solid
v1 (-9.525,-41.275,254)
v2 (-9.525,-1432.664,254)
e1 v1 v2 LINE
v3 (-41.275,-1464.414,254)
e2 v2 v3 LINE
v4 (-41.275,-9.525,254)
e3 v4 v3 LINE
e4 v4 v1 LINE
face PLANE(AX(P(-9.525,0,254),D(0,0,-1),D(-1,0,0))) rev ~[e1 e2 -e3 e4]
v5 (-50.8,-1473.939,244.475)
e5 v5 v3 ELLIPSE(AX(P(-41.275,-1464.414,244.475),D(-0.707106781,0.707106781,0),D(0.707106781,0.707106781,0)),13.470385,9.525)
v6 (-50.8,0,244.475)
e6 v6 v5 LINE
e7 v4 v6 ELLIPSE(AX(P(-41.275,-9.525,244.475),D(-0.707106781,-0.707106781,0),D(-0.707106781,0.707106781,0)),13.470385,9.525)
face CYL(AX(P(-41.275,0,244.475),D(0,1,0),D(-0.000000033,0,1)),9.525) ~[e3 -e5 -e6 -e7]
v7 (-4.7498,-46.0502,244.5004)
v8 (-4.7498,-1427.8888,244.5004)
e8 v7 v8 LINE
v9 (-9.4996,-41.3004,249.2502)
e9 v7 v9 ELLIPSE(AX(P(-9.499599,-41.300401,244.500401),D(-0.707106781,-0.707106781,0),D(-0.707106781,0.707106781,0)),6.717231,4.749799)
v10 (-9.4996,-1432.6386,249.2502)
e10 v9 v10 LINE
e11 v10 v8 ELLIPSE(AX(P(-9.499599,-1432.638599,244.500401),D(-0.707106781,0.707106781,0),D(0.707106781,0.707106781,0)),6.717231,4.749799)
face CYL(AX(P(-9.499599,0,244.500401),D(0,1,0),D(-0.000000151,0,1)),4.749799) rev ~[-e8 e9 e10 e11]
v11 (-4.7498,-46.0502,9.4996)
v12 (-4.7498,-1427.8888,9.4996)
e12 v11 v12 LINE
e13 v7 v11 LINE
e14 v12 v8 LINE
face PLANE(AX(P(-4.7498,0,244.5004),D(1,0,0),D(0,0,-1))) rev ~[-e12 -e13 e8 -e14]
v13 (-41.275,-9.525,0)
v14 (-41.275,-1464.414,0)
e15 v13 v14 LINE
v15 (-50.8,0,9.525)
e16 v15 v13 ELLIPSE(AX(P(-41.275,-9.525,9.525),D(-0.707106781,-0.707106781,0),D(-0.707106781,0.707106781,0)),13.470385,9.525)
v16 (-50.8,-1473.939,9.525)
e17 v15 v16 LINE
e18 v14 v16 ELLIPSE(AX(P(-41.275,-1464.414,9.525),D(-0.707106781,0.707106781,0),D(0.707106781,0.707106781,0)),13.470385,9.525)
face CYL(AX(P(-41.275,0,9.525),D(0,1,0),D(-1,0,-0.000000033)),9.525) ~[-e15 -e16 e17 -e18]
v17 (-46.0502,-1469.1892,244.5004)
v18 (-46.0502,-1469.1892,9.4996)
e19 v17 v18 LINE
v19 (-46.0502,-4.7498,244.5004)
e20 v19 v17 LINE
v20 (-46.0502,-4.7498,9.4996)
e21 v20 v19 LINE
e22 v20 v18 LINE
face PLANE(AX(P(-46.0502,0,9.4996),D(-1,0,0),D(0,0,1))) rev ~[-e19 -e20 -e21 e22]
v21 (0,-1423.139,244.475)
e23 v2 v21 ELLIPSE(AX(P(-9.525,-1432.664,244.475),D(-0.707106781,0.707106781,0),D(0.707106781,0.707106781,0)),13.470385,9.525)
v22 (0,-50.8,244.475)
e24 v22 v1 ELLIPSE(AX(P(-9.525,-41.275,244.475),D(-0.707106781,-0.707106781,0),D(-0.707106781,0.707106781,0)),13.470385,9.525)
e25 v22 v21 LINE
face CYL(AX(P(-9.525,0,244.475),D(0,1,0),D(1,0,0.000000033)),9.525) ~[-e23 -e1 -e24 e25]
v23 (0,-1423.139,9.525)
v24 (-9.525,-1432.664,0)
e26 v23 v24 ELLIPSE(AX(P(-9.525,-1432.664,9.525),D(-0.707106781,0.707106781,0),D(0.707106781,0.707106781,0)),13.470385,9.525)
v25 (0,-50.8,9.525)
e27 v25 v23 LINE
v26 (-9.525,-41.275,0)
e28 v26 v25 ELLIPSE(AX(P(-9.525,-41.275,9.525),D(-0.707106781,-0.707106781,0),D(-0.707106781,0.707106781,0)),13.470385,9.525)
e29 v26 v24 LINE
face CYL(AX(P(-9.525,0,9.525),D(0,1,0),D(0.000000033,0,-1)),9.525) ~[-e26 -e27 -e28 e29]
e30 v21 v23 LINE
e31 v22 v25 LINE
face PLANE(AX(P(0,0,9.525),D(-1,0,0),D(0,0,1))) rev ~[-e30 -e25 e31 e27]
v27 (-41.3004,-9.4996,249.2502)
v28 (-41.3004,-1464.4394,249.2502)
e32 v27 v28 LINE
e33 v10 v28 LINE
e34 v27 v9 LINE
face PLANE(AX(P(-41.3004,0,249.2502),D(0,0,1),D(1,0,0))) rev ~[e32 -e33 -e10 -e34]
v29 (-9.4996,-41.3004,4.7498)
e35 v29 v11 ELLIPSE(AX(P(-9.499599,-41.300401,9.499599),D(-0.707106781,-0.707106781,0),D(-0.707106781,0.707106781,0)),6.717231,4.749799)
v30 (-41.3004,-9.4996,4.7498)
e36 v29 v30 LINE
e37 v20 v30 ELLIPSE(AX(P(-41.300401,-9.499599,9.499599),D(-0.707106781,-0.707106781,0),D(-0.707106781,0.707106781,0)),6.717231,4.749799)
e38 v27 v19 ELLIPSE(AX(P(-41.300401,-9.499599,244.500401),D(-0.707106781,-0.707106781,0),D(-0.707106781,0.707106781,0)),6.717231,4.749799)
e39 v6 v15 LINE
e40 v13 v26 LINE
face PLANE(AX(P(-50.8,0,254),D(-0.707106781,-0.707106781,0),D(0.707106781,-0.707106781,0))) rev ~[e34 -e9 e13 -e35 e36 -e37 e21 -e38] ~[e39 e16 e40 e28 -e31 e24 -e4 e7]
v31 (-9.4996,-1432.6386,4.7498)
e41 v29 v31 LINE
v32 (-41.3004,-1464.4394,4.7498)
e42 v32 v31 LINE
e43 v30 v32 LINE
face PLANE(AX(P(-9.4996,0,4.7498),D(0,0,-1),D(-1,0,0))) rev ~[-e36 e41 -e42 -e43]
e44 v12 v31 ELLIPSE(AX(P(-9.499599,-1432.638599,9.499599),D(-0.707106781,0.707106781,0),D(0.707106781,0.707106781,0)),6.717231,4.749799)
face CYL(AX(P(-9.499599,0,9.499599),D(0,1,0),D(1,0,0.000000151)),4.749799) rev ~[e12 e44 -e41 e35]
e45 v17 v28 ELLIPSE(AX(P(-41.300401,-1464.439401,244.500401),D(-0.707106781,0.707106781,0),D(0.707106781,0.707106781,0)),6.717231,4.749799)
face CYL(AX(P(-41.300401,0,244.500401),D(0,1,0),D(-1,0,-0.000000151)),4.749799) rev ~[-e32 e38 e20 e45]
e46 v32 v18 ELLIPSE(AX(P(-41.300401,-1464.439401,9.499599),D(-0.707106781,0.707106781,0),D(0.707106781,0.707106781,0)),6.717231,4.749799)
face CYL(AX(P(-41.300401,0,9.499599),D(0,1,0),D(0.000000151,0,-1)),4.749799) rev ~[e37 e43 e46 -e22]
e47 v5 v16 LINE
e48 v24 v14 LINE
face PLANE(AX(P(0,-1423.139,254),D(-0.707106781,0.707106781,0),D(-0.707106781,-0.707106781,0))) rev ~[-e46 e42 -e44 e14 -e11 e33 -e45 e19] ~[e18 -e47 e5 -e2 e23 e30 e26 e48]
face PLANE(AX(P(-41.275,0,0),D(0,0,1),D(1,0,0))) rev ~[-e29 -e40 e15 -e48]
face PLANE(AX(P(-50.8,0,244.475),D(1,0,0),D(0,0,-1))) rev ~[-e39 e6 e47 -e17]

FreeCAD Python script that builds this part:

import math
import FreeCAD as App
import Part
import Sketcher
Q = App.Units.Quantity

doc = App.newDocument("Part")
body = doc.addObject("PartDesign::Body", "Body")

# Sketch on XZ plane
sketch1 = doc.addObject("Sketcher::SketchObject", "Sketch")
body.addObject(sketch1)
sketch1.AttachmentSupport = (doc.XZ_Plane, [""])
sketch1.MapMode = "FlatFace"
sketch1.addGeometry([
    Part.LineSegment(App.Vector(-41.275, 0, 0), App.Vector(-9.525, 0, 0)),  # 0
    Part.ArcOfCircle(Part.Circle(App.Vector(-9.525, 9.525, 0), App.Vector(0, 0, 1), 9.525), math.radians(-89.999998), math.radians(-0.000002)),  # 1
    Part.LineSegment(App.Vector(0, 9.525, 0), App.Vector(0, 244.475, 0)),  # 2
    Part.ArcOfCircle(Part.Circle(App.Vector(-9.525, 244.475, 0), App.Vector(0, 0, 1), 9.525), math.radians(0.000002), math.radians(89.999998)),  # 3
    Part.LineSegment(App.Vector(-9.525, 254, 0), App.Vector(-41.275, 254, 0)),  # 4
    Part.ArcOfCircle(Part.Circle(App.Vector(-41.275, 244.475, 0), App.Vector(0, 0, 1), 9.525), math.radians(90.000002), math.radians(179.999998)),  # 5
    Part.LineSegment(App.Vector(-50.8, 244.475, 0), App.Vector(-50.8, 9.525, 0)),  # 6
    Part.ArcOfCircle(Part.Circle(App.Vector(-41.275, 9.525, 0), App.Vector(0, 0, 1), 9.525), math.radians(-179.999998), math.radians(-90.000002)),  # 7
    Part.LineSegment(App.Vector(-46.0502, 9.4996, 0), App.Vector(-46.0502, 244.5004, 0)),  # 8
    Part.ArcOfCircle(Part.Circle(App.Vector(-41.300401, 244.500401, 0), App.Vector(0, 0, 1), 4.749799), math.radians(89.999991), math.radians(180.000009)),  # 9
    Part.LineSegment(App.Vector(-41.3004, 249.2502, 0), App.Vector(-9.4996, 249.2502, 0)),  # 10
    Part.ArcOfCircle(Part.Circle(App.Vector(-9.499599, 244.500401, 0), App.Vector(0, 0, 1), 4.749799), math.radians(-0.000009), math.radians(90.000009)),  # 11
    Part.LineSegment(App.Vector(-4.7498, 244.5004, 0), App.Vector(-4.7498, 9.4996, 0)),  # 12
    Part.ArcOfCircle(Part.Circle(App.Vector(-9.499599, 9.499599, 0), App.Vector(0, 0, 1), 4.749799), math.radians(-90.000009), math.radians(0.000009)),  # 13
    Part.LineSegment(App.Vector(-9.4996, 4.7498, 0), App.Vector(-41.3004, 4.7498, 0)),  # 14
    Part.ArcOfCircle(Part.Circle(App.Vector(-41.300401, 9.499599, 0), App.Vector(0, 0, 1), 4.749799), math.radians(179.999991), math.radians(270.000009)),  # 15
], False)
sketch1.addConstraint([
    Sketcher.Constraint("Tangent", 0, 2, 1, 1),
    Sketcher.Constraint("Tangent", 1, 2, 2, 1),
    Sketcher.Constraint("Tangent", 2, 2, 3, 1),
    Sketcher.Constraint("Tangent", 3, 2, 4, 1),
    Sketcher.Constraint("Tangent", 4, 2, 5, 1),
    Sketcher.Constraint("Tangent", 5, 2, 6, 1),
    Sketcher.Constraint("Tangent", 6, 2, 7, 1),
    Sketcher.Constraint("Tangent", 7, 2, 0, 1),
    Sketcher.Constraint("Tangent", 8, 2, 9, 2),
    Sketcher.Constraint("Tangent", 9, 1, 10, 1),
    Sketcher.Constraint("Tangent", 10, 2, 11, 2),
    Sketcher.Constraint("Tangent", 11, 1, 12, 1),
    Sketcher.Constraint("Tangent", 12, 2, 13, 2),
    Sketcher.Constraint("Tangent", 13, 1, 14, 1),
    Sketcher.Constraint("Tangent", 14, 2, 15, 2),
    Sketcher.Constraint("Tangent", 15, 1, 8, 1),
    Sketcher.Constraint("Horizontal", 0),
    Sketcher.Constraint("Vertical", 2),
    Sketcher.Constraint("Horizontal", 4),
    Sketcher.Constraint("Vertical", 6),
    Sketcher.Constraint("Vertical", 8),
    Sketcher.Constraint("Horizontal", 10),
    Sketcher.Constraint("Vertical", 12),
    Sketcher.Constraint("Horizontal", 14),
    Sketcher.Constraint("Equal", 1, 3),
    Sketcher.Constraint("Equal", 3, 5),
    Sketcher.Constraint("Equal", 5, 7),
    Sketcher.Constraint("Equal", 9, 11),
    Sketcher.Constraint("Equal", 11, 13),
    Sketcher.Constraint("Equal", 13, 15),
    Sketcher.Constraint("PointOnObject", 0, 2, -1),
    Sketcher.Constraint("PointOnObject", 1, 2, -2),
    Sketcher.Constraint("DistanceY", -1, 1, 3, 2, Q("10 in")),
    Sketcher.Constraint("DistanceX", 5, 2, -1, 1, Q("2 in")),
    Sketcher.Constraint("Radius", 1, Q("0.375 in")),
    Sketcher.Constraint("Radius", 9, Q("0.187 in")),
    Sketcher.Constraint("DistanceX", 10, 1, 10, 2, Q("1.252 in")),
    Sketcher.Constraint("DistanceY", 8, 1, 8, 2, Q("9.252 in")),
    Sketcher.Constraint("DistanceX", 9, 3, -1, 1, Q("1.626 in")),
    Sketcher.Constraint("DistanceY", -1, 1, 9, 3, Q("9.626 in")),
])
pad1 = doc.addObject("PartDesign::Pad", "Pad")
body.addObject(pad1)
pad1.Profile = sketch1
pad1.Length = 1473.939

# Sketch on XY plane
sketch2 = doc.addObject("Sketcher::SketchObject", "Sketch001")
body.addObject(sketch2)
sketch2.AttachmentSupport = (doc.XY_Plane, [""])
sketch2.MapMode = "FlatFace"
sketch2.AttachmentOffset = App.Placement(App.Vector(0, 0, 10 * 25.4), App.Rotation())
sketch2.addGeometry([
    Part.LineSegment(App.Vector(0, -1423.139, 0), App.Vector(-50.8, -1473.939, 0)),  # 0
    Part.LineSegment(App.Vector(-50.8, -1473.939, 0), App.Vector(0, -1473.939, 0)),  # 1
    Part.LineSegment(App.Vector(0, -1473.939, 0), App.Vector(0, -1423.139, 0)),  # 2
    Part.LineSegment(App.Vector(0, 0, 0), App.Vector(-50.8, 0, 0)),  # 3
    Part.LineSegment(App.Vector(-50.8, 0, 0), App.Vector(0, -50.8, 0)),  # 4
    Part.LineSegment(App.Vector(0, -50.8, 0), App.Vector(0, 0, 0)),  # 5
], False)
sketch2.addConstraint([
    Sketcher.Constraint("Coincident", 0, 2, 1, 1),
    Sketcher.Constraint("Coincident", 1, 2, 2, 1),
    Sketcher.Constraint("Coincident", 2, 2, 0, 1),
    Sketcher.Constraint("Coincident", 3, 2, 4, 1),
    Sketcher.Constraint("Coincident", 4, 2, 5, 1),
    Sketcher.Constraint("Coincident", 5, 2, 3, 1),
    Sketcher.Constraint("Horizontal", 1),
    Sketcher.Constraint("Vertical", 2),
    Sketcher.Constraint("Horizontal", 3),
    Sketcher.Constraint("Vertical", 5),
    Sketcher.Constraint("Coincident", 5, 2, -1, 1),
    Sketcher.Constraint("PointOnObject", 1, 2, -2),
    Sketcher.Constraint("Perpendicular", 0, 4),
    Sketcher.Constraint("Vertical", 0, 2, 3, 2),
    Sketcher.Constraint("Equal", 3, 2),
    Sketcher.Constraint("DistanceX", 1, 1, 1, 2, Q("2 in")),
    Sketcher.Constraint("DistanceY", 0, 2, -1, 1, Q("1473.939 mm")),
])
pocket1 = doc.addObject("PartDesign::Pocket", "Pocket")
body.addObject(pocket1)
pocket1.Profile = sketch2
pocket1.Type = "ThroughAll"
body2 = doc.addObject("PartDesign::Body", "Body001")

# Sketch on YZ plane
sketch3 = doc.addObject("Sketcher::SketchObject", "Sketch002")
body2.addObject(sketch3)
sketch3.AttachmentSupport = (doc.getObject("YZ_Plane001"), [""])
sketch3.MapMode = "FlatFace"
sketch3.addGeometry([
    Part.ArcOfCircle(Part.Circle(App.Vector(-262.900177, 373.71748, 0), App.Vector(0, 0, 1), 12.700004), math.radians(90.000009), math.radians(132.250183)),  # 0
    Part.LineSegment(App.Vector(-271.439268, 383.118226, 0), App.Vector(-298.414744, 358.615267, 0)),  # 1
    Part.ArcOfCircle(Part.Circle(App.Vector(-289.875654, 349.214526, 0), App.Vector(0, 0, 1), 12.7), math.radians(132.250192), math.radians(180.000003)),  # 2
    Part.LineSegment(App.Vector(-302.575654, 349.214525, 0), App.Vector(-302.575654, 238.994726, 0)),  # 3
    Part.ArcOfCircle(Part.Circle(App.Vector(-289.875654, 238.994726, 0), App.Vector(0, 0, 1), 12.7), math.radians(-179.999998), math.radians(-90.000002)),  # 4
    Part.LineSegment(App.Vector(-289.875654, 226.294726, 0), App.Vector(-220.098802, 226.294726, 0)),  # 5
    Part.ArcOfCircle(Part.Circle(App.Vector(-220.098802, 238.994726, 0), App.Vector(0, 0, 1), 12.7), math.radians(-89.999998), math.radians(-0.000002)),  # 6
    Part.LineSegment(App.Vector(-207.398802, 238.994726, 0), App.Vector(-207.398802, 373.717484, 0)),  # 7
    Part.ArcOfCircle(Part.Circle(App.Vector(-220.098802, 373.717484, 0), App.Vector(0, 0, 1), 12.7), math.radians(0.000002), math.radians(89.999998)),  # 8
    Part.LineSegment(App.Vector(-220.098802, 386.417484, 0), App.Vector(-262.900179, 386.417484, 0)),  # 9
], False)
sketch3.addConstraint([
    Sketcher.Constraint("Tangent", 0, 2, 1, 1),
    Sketcher.Constraint("Tangent", 1, 2, 2, 1),
    Sketcher.Constraint("Tangent", 2, 2, 3, 1),
    Sketcher.Constraint("Tangent", 3, 2, 4, 1),
    Sketcher.Constraint("Tangent", 4, 2, 5, 1),
    Sketcher.Constraint("Tangent", 5, 2, 6, 1),
    Sketcher.Constraint("Tangent", 6, 2, 7, 1),
    Sketcher.Constraint("Tangent", 7, 2, 8, 1),
    Sketcher.Constraint("Tangent", 8, 2, 9, 1),
    Sketcher.Constraint("Tangent", 9, 2, 0, 1),
    Sketcher.Constraint("Vertical", 3),
    Sketcher.Constraint("Horizontal", 5),
    Sketcher.Constraint("Vertical", 7),
    Sketcher.Constraint("Horizontal", 9),
    Sketcher.Constraint("Equal", 2, 4),
    Sketcher.Constraint("Equal", 4, 6),
    Sketcher.Constraint("Equal", 6, 8),
    Sketcher.Constraint("Radius", 0, Q("0.5000002 in")),
    Sketcher.Constraint("Radius", 2, Q("0.5 in")),
    Sketcher.Constraint("DistanceY", 3, 2, 3, 1, Q("110.219799 mm")),
    Sketcher.Constraint("DistanceX", 5, 1, 5, 2, Q("69.776852 mm")),
    Sketcher.Constraint("DistanceY", 7, 1, 7, 2, Q("134.722758 mm")),
    Sketcher.Constraint("DistanceX", 5, 2, -1, 1, Q("220.098802 mm")),
    Sketcher.Constraint("DistanceY", 2, 3, 0, 2, Q("33.9037 mm")),
    Sketcher.Constraint("DistanceY", -1, 1, 0, 3, Q("373.71748 mm")),
])
pad2 = doc.addObject("PartDesign::Pad", "Pad001")
body2.addObject(pad2)
pad2.Profile = sketch3
pad2.Length = Q("0.25 in")
body2.Visibility = False

doc.recompute()
